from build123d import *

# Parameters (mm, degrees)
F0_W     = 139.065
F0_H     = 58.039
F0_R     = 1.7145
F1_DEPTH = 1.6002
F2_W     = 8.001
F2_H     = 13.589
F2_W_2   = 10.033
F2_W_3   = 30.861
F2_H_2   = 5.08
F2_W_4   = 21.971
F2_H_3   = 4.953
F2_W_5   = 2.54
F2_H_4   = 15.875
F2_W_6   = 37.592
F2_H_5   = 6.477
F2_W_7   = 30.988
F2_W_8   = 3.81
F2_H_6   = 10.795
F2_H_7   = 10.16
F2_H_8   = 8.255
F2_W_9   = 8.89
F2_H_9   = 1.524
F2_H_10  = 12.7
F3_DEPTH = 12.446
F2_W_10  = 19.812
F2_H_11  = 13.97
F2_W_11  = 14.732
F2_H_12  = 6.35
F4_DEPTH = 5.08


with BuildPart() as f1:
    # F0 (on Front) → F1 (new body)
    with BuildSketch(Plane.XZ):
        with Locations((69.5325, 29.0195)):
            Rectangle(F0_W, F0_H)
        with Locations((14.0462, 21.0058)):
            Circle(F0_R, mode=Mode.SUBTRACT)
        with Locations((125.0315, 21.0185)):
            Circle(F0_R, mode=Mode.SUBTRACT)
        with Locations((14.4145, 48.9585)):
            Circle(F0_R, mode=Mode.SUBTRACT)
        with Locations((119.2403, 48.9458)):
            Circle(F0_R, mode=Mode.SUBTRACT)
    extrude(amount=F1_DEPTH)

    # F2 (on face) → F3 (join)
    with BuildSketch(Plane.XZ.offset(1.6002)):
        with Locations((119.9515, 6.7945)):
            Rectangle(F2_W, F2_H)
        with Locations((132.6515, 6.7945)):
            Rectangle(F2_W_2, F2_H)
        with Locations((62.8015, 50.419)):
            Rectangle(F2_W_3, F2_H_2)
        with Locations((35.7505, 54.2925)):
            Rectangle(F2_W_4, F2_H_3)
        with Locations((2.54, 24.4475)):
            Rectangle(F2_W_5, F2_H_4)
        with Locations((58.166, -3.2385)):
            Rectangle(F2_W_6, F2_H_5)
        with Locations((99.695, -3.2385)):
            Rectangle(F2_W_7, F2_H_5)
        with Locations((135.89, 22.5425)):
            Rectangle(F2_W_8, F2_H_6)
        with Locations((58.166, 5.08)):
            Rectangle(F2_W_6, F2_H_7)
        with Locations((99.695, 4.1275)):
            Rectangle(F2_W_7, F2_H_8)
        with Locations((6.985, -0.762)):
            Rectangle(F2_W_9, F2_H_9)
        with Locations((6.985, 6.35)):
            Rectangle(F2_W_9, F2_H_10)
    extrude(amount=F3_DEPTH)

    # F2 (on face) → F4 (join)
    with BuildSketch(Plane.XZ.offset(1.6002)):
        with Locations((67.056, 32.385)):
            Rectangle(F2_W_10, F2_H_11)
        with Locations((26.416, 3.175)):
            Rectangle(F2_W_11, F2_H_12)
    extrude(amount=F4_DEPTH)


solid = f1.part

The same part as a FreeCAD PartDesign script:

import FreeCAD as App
import Part
import Sketcher
Q = App.Units.Quantity


def add_polygon(sketch, points):
    """Adds a closed chain of lines whose ends are joined by coincident constraints."""
    first, n = sketch.GeometryCount, len(points)
    for a, b in zip(points, points[1:] + points[:1]):
        sketch.addGeometry(Part.LineSegment(App.Vector(*a, 0), App.Vector(*b, 0)), False)
    for i in range(n):
        sketch.addConstraint(Sketcher.Constraint("Coincident", first + i, 2, first + (i + 1) % n, 1))

doc = App.newDocument("Part")
body = doc.addObject("PartDesign::Body", "Body")

# Sketch on XZ plane
sketch1 = body.newObject("Sketcher::SketchObject", "Sketch")
sketch1.AttachmentSupport = (doc.getObject("XZ_Plane"), [""])
sketch1.MapMode = "FlatFace"
add_polygon(sketch1, [(0, 58), (0, 0), (139.1, 0), (139.1, 58)])  # lines 0-3
sketch1.addGeometry(Part.Circle(App.Vector(14, 21, 0), App.Vector(0, 0, 1), 1.7), False)  # 4
sketch1.addGeometry(Part.Circle(App.Vector(125, 21, 0), App.Vector(0, 0, 1), 1.7), False)  # 5
sketch1.addGeometry(Part.Circle(App.Vector(14.4, 49, 0), App.Vector(0, 0, 1), 1.7), False)  # 6
sketch1.addGeometry(Part.Circle(App.Vector(119.2, 48.9, 0), App.Vector(0, 0, 1), 1.7), False)  # 7
sketch1.addConstraint([
    Sketcher.Constraint("Vertical", 0),
    Sketcher.Constraint("Horizontal", 1),
    Sketcher.Constraint("Vertical", 2),
    Sketcher.Constraint("Horizontal", 3),
    Sketcher.Constraint("Coincident", 0, 2, -1, 1),
    Sketcher.Constraint("Equal", 4, 5),
    Sketcher.Constraint("Equal", 5, 6),
    Sketcher.Constraint("Equal", 6, 7),
    Sketcher.Constraint("Diameter", 4, Q("0.135 in")),
    Sketcher.Constraint("DistanceY", 5, 3, 6, 3, Q("1.1 in")),
    Sketcher.Constraint("DistanceY", 4, 3, 7, 3, Q("1.1 in")),
    Sketcher.Constraint("DistanceX", 1, 1, 1, 2, Q("5.475 in")),
    Sketcher.Constraint("DistanceY", 0, 2, 0, 1, Q("2.285 in")),
    Sketcher.Constraint("DistanceX", -1, 1, 4, 3, Q("0.553 in")),
    Sketcher.Constraint("DistanceY", -1, 1, 4, 3, Q("0.827 in")),
    Sketcher.Constraint("DistanceX", 6, 3, 5, 3, Q("4.355 in")),
    Sketcher.Constraint("DistanceX", 7, 3, 5, 3, Q("0.228 in")),
    Sketcher.Constraint("DistanceX", -1, 1, 5, 3, Q("4.9225 in")),
    Sketcher.Constraint("DistanceY", -1, 1, 5, 3, Q("0.8275 in")),
])
pad1 = body.newObject("PartDesign::Pad", "Pad")
pad1.Profile = sketch1
pad1.Length = Q("0.063 in")

# Sketch on XZ plane
sketch2 = body.newObject("Sketcher::SketchObject", "Sketch001")
sketch2.AttachmentSupport = (doc.getObject("XZ_Plane"), [""])
sketch2.MapMode = "FlatFace"
sketch2.AttachmentOffset = App.Placement(App.Vector(0, 0, 0.063 * 25.4), App.Rotation())
add_polygon(sketch2, [(116, 13.6), (116, 0), (124, 0), (124, 13.6)])  # lines 0-3
add_polygon(sketch2, [(127.6, 13.6), (127.6, 0), (137.7, 0), (137.7, 13.6)])  # lines 4-7
add_polygon(sketch2, [(47.4, 53), (47.4, 47.9), (78.2, 47.9), (78.2, 53)])  # lines 8-11
add_polygon(sketch2, [(24.8, 56.8), (24.8, 51.8), (46.7, 51.8), (46.7, 56.8)])  # lines 12-15
add_polygon(sketch2, [(1.3, 32.4), (1.3, 16.5), (3.8, 16.5), (3.8, 32.4)])  # lines 16-19
add_polygon(sketch2, [(39.4, -6.5), (77, -6.5), (77, 10.2), (39.4, 10.2)])  # lines 20-23
add_polygon(sketch2, [(84.2, -6.5), (115.2, -6.5), (115.2, 8.3), (84.2, 8.3)])  # lines 24-27
add_polygon(sketch2, [(134, 27.9), (134, 17.1), (137.8, 17.1), (137.8, 27.9)])  # lines 28-31
add_polygon(sketch2, [(2.5, -1.5), (11.4, -1.5), (11.4, 12.7), (2.5, 12.7)])  # lines 32-35
sketch2.addConstraint([
    Sketcher.Constraint("Vertical", 0),
    Sketcher.Constraint("Horizontal", 1),
    Sketcher.Constraint("Vertical", 2),
    Sketcher.Constraint("Horizontal", 3),
    Sketcher.Constraint("Vertical", 4),
    Sketcher.Constraint("Horizontal", 5),
    Sketcher.Constraint("Vertical", 6),
    Sketcher.Constraint("Horizontal", 7),
    Sketcher.Constraint("Vertical", 8),
    Sketcher.Constraint("Horizontal", 9),
    Sketcher.Constraint("Vertical", 10),
    Sketcher.Constraint("Horizontal", 11),
    Sketcher.Constraint("Vertical", 12),
    Sketcher.Constraint("Horizontal", 13),
    Sketcher.Constraint("Vertical", 14),
    Sketcher.Constraint("Horizontal", 15),
    Sketcher.Constraint("Vertical", 16),
    Sketcher.Constraint("Horizontal", 17),
    Sketcher.Constraint("Vertical", 18),
    Sketcher.Constraint("Horizontal", 19),
    Sketcher.Constraint("Horizontal", 20),
    Sketcher.Constraint("Vertical", 21),
    Sketcher.Constraint("Horizontal", 22),
    Sketcher.Constraint("Vertical", 23),
    Sketcher.Constraint("Horizontal", 24),
    Sketcher.Constraint("Vertical", 25),
    Sketcher.Constraint("Horizontal", 26),
    Sketcher.Constraint("Vertical", 27),
    Sketcher.Constraint("Vertical", 28),
    Sketcher.Constraint("Horizontal", 29),
    Sketcher.Constraint("Vertical", 30),
    Sketcher.Constraint("Horizontal", 31),
    Sketcher.Constraint("Horizontal", 32),
    Sketcher.Constraint("Vertical", 33),
    Sketcher.Constraint("Horizontal", 34),
    Sketcher.Constraint("Vertical", 35),
    Sketcher.Constraint("PointOnObject", 0, 2, -1),
    Sketcher.Constraint("PointOnObject", 4, 2, -1),
    Sketcher.Constraint("Horizontal", 3, 2, 6, 2),
    Sketcher.Constraint("Horizontal", 23, 2, 24, 2),
    Sketcher.Constraint("DistanceX", 17, 1, 17, 2, Q("0.1 in")),
    Sketcher.Constraint("DistanceY", 8, 2, 8, 1, Q("0.2 in")),
    Sketcher.Constraint("DistanceX", 20, 1, 20, 2, Q("1.48 in")),
    Sketcher.Constraint("DistanceX", 24, 1, 24, 2, Q("1.22 in")),
    Sketcher.Constraint("DistanceX", 29, 1, 29, 2, Q("0.15 in")),
    Sketcher.Constraint("DistanceX", 32, 1, 32, 2, Q("0.35 in")),
    Sketcher.Constraint("DistanceY", 25, 1, 25, 2, Q("0.58 in")),
    Sketcher.Constraint("DistanceY", 33, 1, 33, 2, Q("0.56 in")),
    Sketcher.Constraint("DistanceY", -1, 1, 21, 2, Q("0.4 in")),
    Sketcher.Constraint("DistanceY", -1, 1, 30, 2, Q("1.1 in")),
    Sketcher.Constraint("DistanceY", -1, 1, 33, 2, Q("0.5 in")),
    Sketcher.Constraint("DistanceX", -1, 1, 34, 2, Q("0.1 in")),
    Sketcher.Constraint("DistanceX", 8, 2, 3, 2, Q("2.7 in")),
    Sketcher.Constraint("DistanceX", 9, 2, 2, 2, Q("1.8 in")),
    Sketcher.Constraint("DistanceX", 17, 2, 22, 2, Q("1.4 in")),
    Sketcher.Constraint("DistanceX", 7, 2, 29, 2, Q("0.4 in")),
    Sketcher.Constraint("DistanceX", 17, 2, 32, 2, Q("0.3 in")),
    Sketcher.Constraint("DistanceX", 1, 1, 1, 2, Q("0.315 in")),
    Sketcher.Constraint("DistanceX", 5, 1, 5, 2, Q("0.395 in")),
    Sketcher.Constraint("DistanceX", 13, 1, 13, 2, Q("0.865 in")),
    Sketcher.Constraint("DistanceY", 0, 2, 0, 1, Q("0.535 in")),
    Sketcher.Constraint("DistanceY", 12, 2, 12, 1, Q("0.195 in")),
    Sketcher.Constraint("DistanceY", 16, 2, 16, 1, Q("0.625 in")),
    Sketcher.Constraint("DistanceY", 21, 1, 21, 2, Q("0.655 in")),
    Sketcher.Constraint("DistanceY", 28, 2, 28, 1, Q("0.425 in")),
    Sketcher.Constraint("DistanceX", -1, 1, 1, 2, Q("4.88 in")),
    Sketcher.Constraint("DistanceX", -1, 1, 5, 2, Q("5.42 in")),
    Sketcher.Constraint("DistanceY", -1, 1, 12, 2, Q("2.04 in")),
    Sketcher.Constraint("DistanceX", -1, 1, 13, 2, Q("1.84 in")),
    Sketcher.Constraint("DistanceY", -1, 1, 16, 2, Q("0.65 in")),
    Sketcher.Constraint("DistanceY", 3, 2, 8, 2, Q("1.35 in")),
    Sketcher.Constraint("DistanceX", 24, 2, 0, 2, Q("0.03 in")),
])
pad2 = body.newObject("PartDesign::Pad", "Pad001")
pad2.Profile = sketch2
pad2.Length = Q("0.49 in")

# Sketch on XZ plane
sketch3 = body.newObject("Sketcher::SketchObject", "Sketch002")
sketch3.AttachmentSupport = (doc.getObject("XZ_Plane"), [""])
sketch3.MapMode = "FlatFace"
sketch3.AttachmentOffset = App.Placement(App.Vector(0, 0, 0.063 * 25.4), App.Rotation())
add_polygon(sketch3, [(57, 39), (57, 25), (77, 25), (77, 39)])  # lines 0-3
add_polygon(sketch3, [(19, 6), (19, 0), (34, 0), (34, 6)])  # lines 4-7
sketch3.addConstraint([
    Sketcher.Constraint("Vertical", 0),
    Sketcher.Constraint("Horizontal", 1),
    Sketcher.Constraint("Vertical", 2),
    Sketcher.Constraint("Horizontal", 3),
    Sketcher.Constraint("Vertical", 4),
    Sketcher.Constraint("Horizontal", 5),
    Sketcher.Constraint("Vertical", 6),
    Sketcher.Constraint("Horizontal", 7),
    Sketcher.Constraint("PointOnObject", 4, 2, -1),
    Sketcher.Constraint("DistanceY", -1, 1, 0, 2, Q("1 in")),
    Sketcher.Constraint("DistanceX", 1, 1, 1, 2, Q("0.78 in")),
    Sketcher.Constraint("DistanceX", 5, 1, 5, 2, Q("0.58 in")),
    Sketcher.Constraint("DistanceY", 0, 2, 0, 1, Q("0.55 in")),
    Sketcher.Constraint("DistanceY", 4, 2, 4, 1, Q("0.25 in")),
    Sketcher.Constraint("DistanceX", 4, 2, 0, 2, Q("1.5 in")),
    Sketcher.Constraint("DistanceX", -1, 1, 0, 2, Q("2.25 in")),
])
pad3 = body.newObject("PartDesign::Pad", "Pad002")
pad3.Profile = sketch3
pad3.Length = Q("0.2 in")

doc.recompute()
